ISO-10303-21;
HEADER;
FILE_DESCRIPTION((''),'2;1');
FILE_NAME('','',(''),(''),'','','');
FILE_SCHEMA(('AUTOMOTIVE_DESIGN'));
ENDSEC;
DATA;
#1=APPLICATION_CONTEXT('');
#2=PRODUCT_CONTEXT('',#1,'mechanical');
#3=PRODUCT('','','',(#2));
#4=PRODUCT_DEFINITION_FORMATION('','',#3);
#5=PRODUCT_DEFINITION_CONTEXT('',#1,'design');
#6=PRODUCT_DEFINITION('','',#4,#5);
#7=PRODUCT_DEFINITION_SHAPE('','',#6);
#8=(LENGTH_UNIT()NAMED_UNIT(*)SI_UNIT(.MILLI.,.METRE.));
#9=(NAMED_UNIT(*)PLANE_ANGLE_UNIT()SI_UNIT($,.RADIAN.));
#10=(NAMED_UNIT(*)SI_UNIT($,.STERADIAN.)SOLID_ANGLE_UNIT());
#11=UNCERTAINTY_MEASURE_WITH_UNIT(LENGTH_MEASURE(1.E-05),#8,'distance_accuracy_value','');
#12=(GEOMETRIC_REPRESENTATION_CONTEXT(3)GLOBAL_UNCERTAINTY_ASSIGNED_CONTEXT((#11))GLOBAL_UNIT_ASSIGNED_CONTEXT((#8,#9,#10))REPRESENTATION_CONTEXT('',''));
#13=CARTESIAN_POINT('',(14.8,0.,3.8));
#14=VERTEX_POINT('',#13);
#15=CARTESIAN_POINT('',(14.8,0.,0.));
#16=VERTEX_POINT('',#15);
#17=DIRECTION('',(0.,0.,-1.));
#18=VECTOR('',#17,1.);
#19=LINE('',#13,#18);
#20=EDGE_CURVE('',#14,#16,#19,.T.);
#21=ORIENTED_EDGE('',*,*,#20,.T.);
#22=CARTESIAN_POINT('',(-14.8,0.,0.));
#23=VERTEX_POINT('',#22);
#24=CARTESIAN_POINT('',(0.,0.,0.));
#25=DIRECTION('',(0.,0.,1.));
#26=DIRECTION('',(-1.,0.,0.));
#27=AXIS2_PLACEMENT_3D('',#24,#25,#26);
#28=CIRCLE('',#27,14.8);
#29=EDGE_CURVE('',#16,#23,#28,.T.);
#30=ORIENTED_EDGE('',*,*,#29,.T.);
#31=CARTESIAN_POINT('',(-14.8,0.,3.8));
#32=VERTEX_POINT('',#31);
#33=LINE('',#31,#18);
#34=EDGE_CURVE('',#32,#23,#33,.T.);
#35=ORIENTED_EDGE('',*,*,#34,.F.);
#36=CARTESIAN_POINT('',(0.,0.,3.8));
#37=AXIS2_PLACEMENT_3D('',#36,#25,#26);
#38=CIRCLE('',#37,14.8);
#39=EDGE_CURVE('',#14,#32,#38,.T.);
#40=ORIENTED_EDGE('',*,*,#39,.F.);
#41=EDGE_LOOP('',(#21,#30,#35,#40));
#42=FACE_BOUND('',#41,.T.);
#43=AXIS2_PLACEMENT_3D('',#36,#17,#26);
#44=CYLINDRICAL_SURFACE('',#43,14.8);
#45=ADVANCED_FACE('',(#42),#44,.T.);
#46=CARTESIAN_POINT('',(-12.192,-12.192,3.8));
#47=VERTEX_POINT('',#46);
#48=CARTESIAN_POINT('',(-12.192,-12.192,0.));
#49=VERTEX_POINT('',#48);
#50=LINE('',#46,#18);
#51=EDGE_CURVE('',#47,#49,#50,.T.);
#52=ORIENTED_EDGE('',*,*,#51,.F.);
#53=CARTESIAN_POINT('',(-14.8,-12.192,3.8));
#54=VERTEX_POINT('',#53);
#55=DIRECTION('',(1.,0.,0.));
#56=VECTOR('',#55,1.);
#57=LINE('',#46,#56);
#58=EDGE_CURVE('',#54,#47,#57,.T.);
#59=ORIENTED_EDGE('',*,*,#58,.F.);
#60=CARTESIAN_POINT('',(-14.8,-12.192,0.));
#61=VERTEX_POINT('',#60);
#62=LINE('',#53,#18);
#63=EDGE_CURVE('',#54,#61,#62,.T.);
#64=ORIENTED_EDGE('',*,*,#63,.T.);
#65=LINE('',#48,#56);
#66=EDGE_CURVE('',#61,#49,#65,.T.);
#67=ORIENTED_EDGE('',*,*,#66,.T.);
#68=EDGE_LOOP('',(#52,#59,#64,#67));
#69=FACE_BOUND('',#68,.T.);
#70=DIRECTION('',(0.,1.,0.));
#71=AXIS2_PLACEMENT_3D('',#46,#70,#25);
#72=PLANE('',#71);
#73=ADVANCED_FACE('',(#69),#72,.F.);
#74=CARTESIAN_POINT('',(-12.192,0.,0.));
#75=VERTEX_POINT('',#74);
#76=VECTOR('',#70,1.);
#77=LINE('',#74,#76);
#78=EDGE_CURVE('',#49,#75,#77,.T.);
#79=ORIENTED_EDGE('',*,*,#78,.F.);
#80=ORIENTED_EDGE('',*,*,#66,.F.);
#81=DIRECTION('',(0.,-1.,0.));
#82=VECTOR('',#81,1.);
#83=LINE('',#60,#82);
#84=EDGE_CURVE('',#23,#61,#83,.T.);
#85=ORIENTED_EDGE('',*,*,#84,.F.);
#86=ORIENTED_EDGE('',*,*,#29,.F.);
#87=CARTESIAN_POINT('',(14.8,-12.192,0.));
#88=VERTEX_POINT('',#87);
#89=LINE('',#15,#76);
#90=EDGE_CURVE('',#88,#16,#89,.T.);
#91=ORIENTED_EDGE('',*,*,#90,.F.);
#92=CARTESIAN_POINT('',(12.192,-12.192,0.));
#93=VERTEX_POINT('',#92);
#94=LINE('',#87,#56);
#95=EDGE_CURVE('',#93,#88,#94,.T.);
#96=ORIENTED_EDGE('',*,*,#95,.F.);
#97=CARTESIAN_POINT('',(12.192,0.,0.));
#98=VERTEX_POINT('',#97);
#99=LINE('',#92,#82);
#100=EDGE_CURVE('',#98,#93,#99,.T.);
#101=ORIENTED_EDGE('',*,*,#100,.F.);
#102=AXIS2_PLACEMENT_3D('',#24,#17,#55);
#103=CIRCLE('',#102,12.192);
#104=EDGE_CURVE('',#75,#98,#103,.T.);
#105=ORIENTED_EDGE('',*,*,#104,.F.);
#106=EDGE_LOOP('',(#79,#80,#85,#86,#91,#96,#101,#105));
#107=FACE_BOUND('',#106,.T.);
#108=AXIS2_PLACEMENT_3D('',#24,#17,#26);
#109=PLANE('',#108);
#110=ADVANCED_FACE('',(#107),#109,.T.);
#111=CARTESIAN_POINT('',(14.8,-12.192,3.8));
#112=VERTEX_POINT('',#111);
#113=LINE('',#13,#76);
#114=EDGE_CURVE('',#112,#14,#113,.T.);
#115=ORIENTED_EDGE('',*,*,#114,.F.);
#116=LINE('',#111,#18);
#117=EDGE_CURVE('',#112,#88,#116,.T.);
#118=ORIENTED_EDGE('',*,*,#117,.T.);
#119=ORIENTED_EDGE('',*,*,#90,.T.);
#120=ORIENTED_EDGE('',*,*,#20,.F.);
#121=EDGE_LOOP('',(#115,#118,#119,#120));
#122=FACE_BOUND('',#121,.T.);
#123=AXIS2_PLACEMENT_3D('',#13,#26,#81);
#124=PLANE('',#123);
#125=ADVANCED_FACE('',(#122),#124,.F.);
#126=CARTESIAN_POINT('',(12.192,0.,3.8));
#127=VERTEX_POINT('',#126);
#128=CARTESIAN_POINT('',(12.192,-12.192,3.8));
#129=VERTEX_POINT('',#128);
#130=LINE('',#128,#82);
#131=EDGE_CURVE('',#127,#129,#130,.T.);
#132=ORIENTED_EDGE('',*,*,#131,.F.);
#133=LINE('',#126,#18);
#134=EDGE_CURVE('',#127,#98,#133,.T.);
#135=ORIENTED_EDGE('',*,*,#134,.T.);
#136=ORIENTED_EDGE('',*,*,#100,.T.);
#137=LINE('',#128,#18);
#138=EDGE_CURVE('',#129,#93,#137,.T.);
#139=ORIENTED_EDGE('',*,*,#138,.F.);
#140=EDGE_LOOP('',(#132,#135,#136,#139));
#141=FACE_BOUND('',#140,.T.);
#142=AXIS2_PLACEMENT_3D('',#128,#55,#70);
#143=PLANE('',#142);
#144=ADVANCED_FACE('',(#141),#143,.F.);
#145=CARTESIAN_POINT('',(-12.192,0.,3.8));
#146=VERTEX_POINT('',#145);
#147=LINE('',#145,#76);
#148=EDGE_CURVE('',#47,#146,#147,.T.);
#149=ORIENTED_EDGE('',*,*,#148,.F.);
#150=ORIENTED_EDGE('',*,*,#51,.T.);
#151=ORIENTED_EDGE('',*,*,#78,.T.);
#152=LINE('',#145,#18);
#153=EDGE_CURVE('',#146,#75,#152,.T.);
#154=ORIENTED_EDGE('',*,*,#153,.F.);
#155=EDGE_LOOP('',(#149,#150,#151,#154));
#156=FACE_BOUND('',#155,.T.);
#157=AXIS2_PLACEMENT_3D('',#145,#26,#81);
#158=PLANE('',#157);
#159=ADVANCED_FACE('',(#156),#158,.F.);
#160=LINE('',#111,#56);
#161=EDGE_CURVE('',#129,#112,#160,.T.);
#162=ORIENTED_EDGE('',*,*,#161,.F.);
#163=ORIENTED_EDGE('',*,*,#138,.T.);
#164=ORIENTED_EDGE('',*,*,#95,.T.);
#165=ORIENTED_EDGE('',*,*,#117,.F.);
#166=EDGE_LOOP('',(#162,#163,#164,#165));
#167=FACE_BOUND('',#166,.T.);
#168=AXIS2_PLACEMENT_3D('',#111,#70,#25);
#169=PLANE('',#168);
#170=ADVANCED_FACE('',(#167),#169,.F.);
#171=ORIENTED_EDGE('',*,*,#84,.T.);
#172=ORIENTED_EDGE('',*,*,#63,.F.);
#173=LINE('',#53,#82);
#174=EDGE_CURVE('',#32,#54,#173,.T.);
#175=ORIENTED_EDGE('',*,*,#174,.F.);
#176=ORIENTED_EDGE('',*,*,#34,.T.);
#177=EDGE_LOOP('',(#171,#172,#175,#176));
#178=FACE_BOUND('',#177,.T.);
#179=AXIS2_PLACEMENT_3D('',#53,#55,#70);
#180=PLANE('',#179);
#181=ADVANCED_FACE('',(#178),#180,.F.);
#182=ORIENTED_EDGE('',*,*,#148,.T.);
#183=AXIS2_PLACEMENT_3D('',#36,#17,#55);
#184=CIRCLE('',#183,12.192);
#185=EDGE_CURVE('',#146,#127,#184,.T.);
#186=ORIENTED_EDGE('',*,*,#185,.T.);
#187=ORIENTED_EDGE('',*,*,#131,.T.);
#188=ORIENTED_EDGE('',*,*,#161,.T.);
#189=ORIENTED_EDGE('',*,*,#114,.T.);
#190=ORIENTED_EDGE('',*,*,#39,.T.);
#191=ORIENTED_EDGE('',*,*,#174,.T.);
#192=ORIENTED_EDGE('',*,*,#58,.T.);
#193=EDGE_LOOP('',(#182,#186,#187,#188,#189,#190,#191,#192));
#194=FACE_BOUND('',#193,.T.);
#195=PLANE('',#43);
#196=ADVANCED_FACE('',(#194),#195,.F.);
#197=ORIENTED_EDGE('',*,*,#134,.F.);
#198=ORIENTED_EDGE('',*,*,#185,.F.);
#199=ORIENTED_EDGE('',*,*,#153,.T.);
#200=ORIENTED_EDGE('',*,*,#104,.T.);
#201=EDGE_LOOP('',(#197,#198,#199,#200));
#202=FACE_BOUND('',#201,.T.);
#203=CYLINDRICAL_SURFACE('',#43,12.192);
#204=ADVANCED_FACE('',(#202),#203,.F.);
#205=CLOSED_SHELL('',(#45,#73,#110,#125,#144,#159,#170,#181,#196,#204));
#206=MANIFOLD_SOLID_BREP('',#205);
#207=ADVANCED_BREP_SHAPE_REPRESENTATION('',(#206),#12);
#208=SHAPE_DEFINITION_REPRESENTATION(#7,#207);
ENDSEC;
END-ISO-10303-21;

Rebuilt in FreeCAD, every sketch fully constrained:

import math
import FreeCAD as App
import Part
import Sketcher
from FreeCAD import Vector
Q = App.Units.Quantity

doc = App.newDocument("Part")
body = doc.addObject("PartDesign::Body", "Body")

sketch1 = doc.addObject("Sketcher::SketchObject", "Sketch")
body.addObject(sketch1)
sketch1.AttachmentSupport = (doc.XY_Plane, [""])
sketch1.MapMode = "FlatFace"
sketch1.addGeometry([
    Part.LineSegment(Vector(-14.8, -12.192, 0), Vector(-12.192, -12.192, 0)),
    Part.LineSegment(Vector(-12.192, -12.192, 0), Vector(-12.192, 0, 0)),
    Part.ArcOfCircle(Part.Circle(Vector(0, 0, 0), Vector(0, 0, 1), 12.192), math.radians(0), math.radians(180)),
    Part.LineSegment(Vector(12.192, 0, 0), Vector(12.192, -12.192, 0)),
    Part.LineSegment(Vector(12.192, -12.192, 0), Vector(14.8, -12.192, 0)),
    Part.LineSegment(Vector(14.8, -12.192, 0), Vector(14.8, 0, 0)),
    Part.ArcOfCircle(Part.Circle(Vector(0, 0, 0), Vector(0, 0, 1), 14.8), math.radians(0), math.radians(180)),
    Part.LineSegment(Vector(-14.8, 0, 0), Vector(-14.8, -12.192, 0)),
], False)
sketch1.addConstraint([
    Sketcher.Constraint("Coincident", 0, 2, 1, 1),
    Sketcher.Constraint("Tangent", 1, 2, 2, 2),
    Sketcher.Constraint("Tangent", 2, 1, 3, 1),
    Sketcher.Constraint("Coincident", 3, 2, 4, 1),
    Sketcher.Constraint("Coincident", 4, 2, 5, 1),
    Sketcher.Constraint("Tangent", 5, 2, 6, 1),
    Sketcher.Constraint("Tangent", 6, 2, 7, 1),
    Sketcher.Constraint("Coincident", 7, 2, 0, 1),
    Sketcher.Constraint("Horizontal", 0),
    Sketcher.Constraint("Vertical", 1),
    Sketcher.Constraint("Vertical", 3),
    Sketcher.Constraint("Horizontal", 4),
    Sketcher.Constraint("Vertical", 5),
    Sketcher.Constraint("Vertical", 7),
    Sketcher.Constraint("Coincident", 2, 3, -1, 1),
    Sketcher.Constraint("Coincident", 6, 3, -1, 1),
    Sketcher.Constraint("Horizontal", 0, 2, 3, 2),
    Sketcher.Constraint("Radius", 6, Q("14.8 mm")),
    Sketcher.Constraint("Radius", 2, Q("12.192 mm")),
    Sketcher.Constraint("DistanceY", 1, 1, 1, 2, Q("12.192 mm")),
])
pad1 = doc.addObject("PartDesign::Pad", "Pad")
body.addObject(pad1)
pad1.Profile = sketch1
pad1.Length = 3.8

doc.recompute()
